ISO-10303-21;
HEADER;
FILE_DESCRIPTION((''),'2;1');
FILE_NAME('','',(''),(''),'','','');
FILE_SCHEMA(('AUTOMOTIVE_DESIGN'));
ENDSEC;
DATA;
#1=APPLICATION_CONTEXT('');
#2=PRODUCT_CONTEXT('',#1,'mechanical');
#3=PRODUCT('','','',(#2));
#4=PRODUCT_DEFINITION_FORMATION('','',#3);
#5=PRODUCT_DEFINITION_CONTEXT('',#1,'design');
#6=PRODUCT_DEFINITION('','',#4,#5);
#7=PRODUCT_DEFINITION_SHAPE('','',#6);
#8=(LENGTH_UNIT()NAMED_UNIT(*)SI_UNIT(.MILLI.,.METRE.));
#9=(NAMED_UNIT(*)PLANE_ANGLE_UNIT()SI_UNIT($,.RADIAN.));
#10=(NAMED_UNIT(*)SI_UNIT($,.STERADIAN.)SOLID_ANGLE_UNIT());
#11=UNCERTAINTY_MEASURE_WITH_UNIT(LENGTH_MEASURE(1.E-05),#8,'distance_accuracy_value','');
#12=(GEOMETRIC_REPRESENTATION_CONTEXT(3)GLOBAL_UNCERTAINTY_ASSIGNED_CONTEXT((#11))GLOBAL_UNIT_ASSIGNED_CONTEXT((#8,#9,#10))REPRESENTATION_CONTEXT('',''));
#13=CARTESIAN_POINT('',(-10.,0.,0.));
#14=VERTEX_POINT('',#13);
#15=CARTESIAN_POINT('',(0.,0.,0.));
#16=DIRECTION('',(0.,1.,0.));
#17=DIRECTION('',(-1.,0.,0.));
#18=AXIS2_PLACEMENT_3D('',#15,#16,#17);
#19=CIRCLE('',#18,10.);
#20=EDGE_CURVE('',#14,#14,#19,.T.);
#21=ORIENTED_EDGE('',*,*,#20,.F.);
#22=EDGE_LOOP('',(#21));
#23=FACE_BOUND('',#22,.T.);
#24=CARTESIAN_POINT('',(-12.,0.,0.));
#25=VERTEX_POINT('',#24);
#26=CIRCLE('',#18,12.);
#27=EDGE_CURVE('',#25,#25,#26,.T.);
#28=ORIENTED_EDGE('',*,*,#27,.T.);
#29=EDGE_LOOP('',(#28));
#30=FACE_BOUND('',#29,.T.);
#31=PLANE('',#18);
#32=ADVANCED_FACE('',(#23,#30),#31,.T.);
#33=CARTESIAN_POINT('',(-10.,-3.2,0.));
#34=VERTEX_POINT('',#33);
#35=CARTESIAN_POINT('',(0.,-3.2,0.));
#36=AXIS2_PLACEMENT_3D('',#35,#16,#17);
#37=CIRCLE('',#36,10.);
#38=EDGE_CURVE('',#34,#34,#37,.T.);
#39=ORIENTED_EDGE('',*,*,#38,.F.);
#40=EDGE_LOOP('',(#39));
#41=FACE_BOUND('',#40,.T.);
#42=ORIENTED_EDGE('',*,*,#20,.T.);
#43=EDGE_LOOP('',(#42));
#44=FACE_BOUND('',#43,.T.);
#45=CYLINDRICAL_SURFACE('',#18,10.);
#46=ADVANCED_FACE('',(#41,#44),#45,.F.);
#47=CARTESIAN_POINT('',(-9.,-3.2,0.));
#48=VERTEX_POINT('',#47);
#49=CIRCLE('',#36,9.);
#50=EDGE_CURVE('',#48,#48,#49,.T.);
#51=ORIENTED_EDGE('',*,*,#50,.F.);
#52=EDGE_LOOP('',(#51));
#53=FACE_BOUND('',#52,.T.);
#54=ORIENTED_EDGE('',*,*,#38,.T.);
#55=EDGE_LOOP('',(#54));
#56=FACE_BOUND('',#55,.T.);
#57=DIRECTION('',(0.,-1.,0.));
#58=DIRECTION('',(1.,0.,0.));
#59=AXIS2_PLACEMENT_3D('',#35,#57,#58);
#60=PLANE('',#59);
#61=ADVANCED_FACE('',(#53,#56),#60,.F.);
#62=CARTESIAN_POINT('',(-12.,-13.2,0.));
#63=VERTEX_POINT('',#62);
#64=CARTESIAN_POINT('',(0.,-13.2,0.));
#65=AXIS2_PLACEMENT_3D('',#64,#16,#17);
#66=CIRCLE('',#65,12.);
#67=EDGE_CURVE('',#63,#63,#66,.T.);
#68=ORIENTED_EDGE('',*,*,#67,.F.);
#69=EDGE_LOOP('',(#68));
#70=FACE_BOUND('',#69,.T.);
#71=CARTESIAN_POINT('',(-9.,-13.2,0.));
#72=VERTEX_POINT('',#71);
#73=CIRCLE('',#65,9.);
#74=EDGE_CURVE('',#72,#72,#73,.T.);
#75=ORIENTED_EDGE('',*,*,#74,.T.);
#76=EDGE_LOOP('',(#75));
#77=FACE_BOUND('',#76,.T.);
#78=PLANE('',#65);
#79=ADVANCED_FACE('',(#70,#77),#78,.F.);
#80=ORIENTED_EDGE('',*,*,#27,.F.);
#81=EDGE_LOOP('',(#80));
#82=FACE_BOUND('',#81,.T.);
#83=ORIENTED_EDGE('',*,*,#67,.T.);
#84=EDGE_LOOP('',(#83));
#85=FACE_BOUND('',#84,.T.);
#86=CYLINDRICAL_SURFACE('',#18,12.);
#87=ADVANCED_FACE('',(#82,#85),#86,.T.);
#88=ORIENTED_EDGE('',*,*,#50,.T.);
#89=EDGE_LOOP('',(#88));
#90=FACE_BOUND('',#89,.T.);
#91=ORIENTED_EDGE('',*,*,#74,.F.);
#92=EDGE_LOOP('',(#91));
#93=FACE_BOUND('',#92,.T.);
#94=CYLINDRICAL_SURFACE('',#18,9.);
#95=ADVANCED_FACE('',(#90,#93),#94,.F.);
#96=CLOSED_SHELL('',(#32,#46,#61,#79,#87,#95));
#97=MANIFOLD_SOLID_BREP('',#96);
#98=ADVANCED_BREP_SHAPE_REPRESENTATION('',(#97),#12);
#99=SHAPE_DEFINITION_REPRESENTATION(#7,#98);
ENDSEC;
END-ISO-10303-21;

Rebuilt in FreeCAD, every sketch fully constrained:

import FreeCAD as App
import Part
import Sketcher

V = App.Vector
Q = App.Units.Quantity


def add_polygon(sketch, points):
    """Adds a closed chain of lines whose ends are joined by coincident constraints."""
    first, n = sketch.GeometryCount, len(points)
    for a, b in zip(points, points[1:] + points[:1]):
        sketch.addGeometry(Part.LineSegment(App.Vector(*a, 0), App.Vector(*b, 0)), False)
    for i in range(n):
        sketch.addConstraint(Sketcher.Constraint("Coincident", first + i, 2, first + (i + 1) % n, 1))

doc = App.newDocument("Part")
body = doc.addObject("PartDesign::Body", "Body")

# Sketch on XY plane
sketch1 = body.newObject("Sketcher::SketchObject", "Sketch")
sketch1.AttachmentSupport = (doc.getObject("XY_Plane"), [""])
sketch1.MapMode = "FlatFace"
add_polygon(sketch1, [(10, 0), (10, -3.2), (9, -3.2), (9, -13.2), (12, -13.2), (12, 0)])  # lines 0-5
sketch1.addConstraint(Sketcher.Constraint("Vertical", 0))
sketch1.addConstraint(Sketcher.Constraint("Horizontal", 1))
sketch1.addConstraint(Sketcher.Constraint("Vertical", 2))
sketch1.addConstraint(Sketcher.Constraint("Horizontal", 3))
sketch1.addConstraint(Sketcher.Constraint("Vertical", 4))
sketch1.addConstraint(Sketcher.Constraint("Horizontal", 5))
sketch1.addConstraint(Sketcher.Constraint("PointOnObject", 4, 2, -1))
sketch1.addConstraint(Sketcher.Constraint("DistanceX", 1, 2, 1, 1, Q("1 mm")))
sketch1.addConstraint(Sketcher.Constraint("DistanceX", 3, 1, 3, 2, Q("3 mm")))
sketch1.addConstraint(Sketcher.Constraint("DistanceY", 2, 2, 2, 1, Q("10 mm")))
sketch1.addConstraint(Sketcher.Constraint("DistanceY", 0, 2, 0, 1, Q("3.2 mm")))
sketch1.addConstraint(Sketcher.Constraint("DistanceX", -1, 1, 0, 2, Q("10 mm")))
revolution = body.newObject("PartDesign::Revolution", "Revolution")
revolution.Profile = sketch1
revolution.ReferenceAxis = (sketch1, ["V_Axis"])
revolution.Angle = 360

doc.recompute()
